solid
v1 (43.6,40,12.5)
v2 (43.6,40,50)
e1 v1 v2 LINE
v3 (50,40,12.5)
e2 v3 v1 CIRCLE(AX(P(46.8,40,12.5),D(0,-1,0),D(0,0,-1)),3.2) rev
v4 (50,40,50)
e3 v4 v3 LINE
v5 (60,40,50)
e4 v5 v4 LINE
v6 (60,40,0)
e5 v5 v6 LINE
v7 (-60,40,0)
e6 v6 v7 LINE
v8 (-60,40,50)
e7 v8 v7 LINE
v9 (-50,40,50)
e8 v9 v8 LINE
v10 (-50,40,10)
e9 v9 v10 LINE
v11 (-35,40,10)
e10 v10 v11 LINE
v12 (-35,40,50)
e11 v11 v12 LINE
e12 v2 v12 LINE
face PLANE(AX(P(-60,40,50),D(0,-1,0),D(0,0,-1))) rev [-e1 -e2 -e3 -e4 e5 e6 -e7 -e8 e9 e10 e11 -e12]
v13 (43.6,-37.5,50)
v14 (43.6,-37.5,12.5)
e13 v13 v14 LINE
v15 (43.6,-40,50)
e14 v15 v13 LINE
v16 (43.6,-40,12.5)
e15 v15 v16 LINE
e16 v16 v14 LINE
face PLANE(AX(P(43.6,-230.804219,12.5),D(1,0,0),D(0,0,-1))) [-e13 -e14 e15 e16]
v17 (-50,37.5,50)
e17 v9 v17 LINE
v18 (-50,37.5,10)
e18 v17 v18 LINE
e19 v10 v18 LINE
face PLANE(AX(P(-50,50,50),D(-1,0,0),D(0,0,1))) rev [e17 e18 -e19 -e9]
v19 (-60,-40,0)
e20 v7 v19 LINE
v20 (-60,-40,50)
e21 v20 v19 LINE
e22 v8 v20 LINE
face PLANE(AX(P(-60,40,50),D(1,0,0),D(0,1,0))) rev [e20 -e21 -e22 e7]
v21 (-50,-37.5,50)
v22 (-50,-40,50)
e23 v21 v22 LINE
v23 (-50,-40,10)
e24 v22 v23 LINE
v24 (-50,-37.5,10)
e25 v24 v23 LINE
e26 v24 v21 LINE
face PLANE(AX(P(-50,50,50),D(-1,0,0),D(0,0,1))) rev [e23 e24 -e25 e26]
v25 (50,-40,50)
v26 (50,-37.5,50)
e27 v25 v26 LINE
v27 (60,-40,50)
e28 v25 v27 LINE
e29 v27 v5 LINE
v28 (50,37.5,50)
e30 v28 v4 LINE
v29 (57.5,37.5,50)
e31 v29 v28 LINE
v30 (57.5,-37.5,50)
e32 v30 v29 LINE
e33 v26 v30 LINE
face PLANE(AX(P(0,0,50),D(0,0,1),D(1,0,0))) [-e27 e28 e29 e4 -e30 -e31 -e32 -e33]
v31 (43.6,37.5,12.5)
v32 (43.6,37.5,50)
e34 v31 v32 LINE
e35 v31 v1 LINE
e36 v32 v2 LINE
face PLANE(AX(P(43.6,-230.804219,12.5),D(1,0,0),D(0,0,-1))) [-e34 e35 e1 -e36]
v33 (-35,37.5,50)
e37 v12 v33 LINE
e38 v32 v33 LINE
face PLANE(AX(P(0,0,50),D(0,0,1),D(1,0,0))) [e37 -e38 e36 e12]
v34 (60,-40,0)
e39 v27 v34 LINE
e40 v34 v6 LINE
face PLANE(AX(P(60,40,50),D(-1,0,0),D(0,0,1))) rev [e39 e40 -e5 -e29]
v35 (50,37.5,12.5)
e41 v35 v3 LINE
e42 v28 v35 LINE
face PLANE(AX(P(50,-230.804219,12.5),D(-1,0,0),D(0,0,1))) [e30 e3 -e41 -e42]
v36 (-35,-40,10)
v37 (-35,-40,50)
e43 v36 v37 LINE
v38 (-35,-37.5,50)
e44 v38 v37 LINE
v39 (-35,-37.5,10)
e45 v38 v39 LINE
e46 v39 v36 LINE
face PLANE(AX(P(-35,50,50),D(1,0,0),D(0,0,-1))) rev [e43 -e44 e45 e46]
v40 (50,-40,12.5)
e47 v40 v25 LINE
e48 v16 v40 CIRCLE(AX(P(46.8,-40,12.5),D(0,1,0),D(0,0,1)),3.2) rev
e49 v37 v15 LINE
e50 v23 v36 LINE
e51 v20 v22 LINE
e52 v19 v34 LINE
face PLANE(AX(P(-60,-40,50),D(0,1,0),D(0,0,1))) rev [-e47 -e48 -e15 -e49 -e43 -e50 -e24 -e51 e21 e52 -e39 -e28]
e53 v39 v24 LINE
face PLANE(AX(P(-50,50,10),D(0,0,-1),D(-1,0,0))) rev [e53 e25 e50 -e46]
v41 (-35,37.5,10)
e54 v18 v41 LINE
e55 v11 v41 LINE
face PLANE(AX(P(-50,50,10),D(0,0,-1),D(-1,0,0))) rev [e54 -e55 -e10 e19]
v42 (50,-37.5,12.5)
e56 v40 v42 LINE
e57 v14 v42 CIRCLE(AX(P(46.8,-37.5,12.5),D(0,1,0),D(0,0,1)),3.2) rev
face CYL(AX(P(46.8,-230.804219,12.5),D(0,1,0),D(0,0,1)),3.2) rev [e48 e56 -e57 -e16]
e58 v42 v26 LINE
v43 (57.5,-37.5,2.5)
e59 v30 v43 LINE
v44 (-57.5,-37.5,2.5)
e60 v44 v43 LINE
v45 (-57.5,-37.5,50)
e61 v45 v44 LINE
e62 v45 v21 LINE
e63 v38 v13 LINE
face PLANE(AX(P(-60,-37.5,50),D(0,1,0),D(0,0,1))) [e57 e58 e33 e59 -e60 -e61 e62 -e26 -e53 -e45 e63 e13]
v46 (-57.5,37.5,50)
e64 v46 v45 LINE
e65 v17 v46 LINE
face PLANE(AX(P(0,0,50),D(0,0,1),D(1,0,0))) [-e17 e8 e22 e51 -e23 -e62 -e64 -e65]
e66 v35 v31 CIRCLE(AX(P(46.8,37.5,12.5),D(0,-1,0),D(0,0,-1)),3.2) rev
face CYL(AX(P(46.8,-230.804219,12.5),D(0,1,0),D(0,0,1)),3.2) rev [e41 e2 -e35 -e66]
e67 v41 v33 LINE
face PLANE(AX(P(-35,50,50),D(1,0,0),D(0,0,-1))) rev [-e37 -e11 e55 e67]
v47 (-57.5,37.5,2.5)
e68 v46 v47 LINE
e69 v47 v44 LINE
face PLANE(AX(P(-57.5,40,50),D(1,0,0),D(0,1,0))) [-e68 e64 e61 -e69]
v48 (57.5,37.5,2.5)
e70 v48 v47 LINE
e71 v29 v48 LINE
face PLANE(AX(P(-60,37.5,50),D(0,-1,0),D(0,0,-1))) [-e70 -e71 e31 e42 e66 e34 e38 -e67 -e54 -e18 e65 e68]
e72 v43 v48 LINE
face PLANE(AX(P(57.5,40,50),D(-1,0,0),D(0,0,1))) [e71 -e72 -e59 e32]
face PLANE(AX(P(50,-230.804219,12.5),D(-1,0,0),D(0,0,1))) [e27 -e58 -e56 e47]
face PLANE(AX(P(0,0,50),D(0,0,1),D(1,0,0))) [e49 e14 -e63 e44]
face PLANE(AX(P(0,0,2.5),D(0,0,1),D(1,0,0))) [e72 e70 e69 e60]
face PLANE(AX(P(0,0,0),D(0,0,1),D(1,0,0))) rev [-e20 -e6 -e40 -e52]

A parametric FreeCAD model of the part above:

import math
import FreeCAD as App
import Part
import Sketcher
from FreeCAD import Vector


def faces_at(feature, points):
    """Names of the faces that lie closest to the given points."""
    faces = feature.Shape.Faces
    near = lambda p: min(range(len(faces)), key=lambda i: faces[i].distToShape(Part.Vertex(*p))[0])
    return sorted({f"Face{near(p) + 1}" for p in points})


def add_polygon(sketch, points):
    """Adds a closed chain of lines whose ends are joined by coincident constraints."""
    first, n = sketch.GeometryCount, len(points)
    for a, b in zip(points, points[1:] + points[:1]):
        sketch.addGeometry(Part.LineSegment(App.Vector(*a, 0), App.Vector(*b, 0)), False)
    for i in range(n):
        sketch.addConstraint(Sketcher.Constraint("Coincident", first + i, 2, first + (i + 1) % n, 1))

doc = App.newDocument("Part")
body = doc.addObject("PartDesign::Body", "Body")

# Sketch on XY plane
sketch1 = doc.addObject("Sketcher::SketchObject", "Sketch")
body.addObject(sketch1)
sketch1.AttachmentSupport = (doc.XY_Plane, [""])
sketch1.MapMode = "FlatFace"
add_polygon(sketch1, [(-60, 40), (-60, -40), (60, -40), (60, 40)])  # lines 0-3
sketch1.addConstraint([
    Sketcher.Constraint("Vertical", 0),
    Sketcher.Constraint("Horizontal", 1),
    Sketcher.Constraint("Vertical", 2),
    Sketcher.Constraint("Horizontal", 3),
    Sketcher.Constraint("Symmetric", 0, 2, 2, 2, -1, 1),
    Sketcher.Constraint("DistanceX", 1, 1, 1, 2, 120.0),
    Sketcher.Constraint("DistanceY", 0, 2, 0, 1, 80.0),
])
pad1 = doc.addObject("PartDesign::Pad", "Pad")
body.addObject(pad1)
pad1.Profile = sketch1
pad1.Length = 50
doc.recompute()

thickness = doc.addObject("PartDesign::Thickness", "Thickness")
body.addObject(thickness)
thickness.Base = (pad1, faces_at(pad1, [(0, 0, 50)]))
thickness.Value = 2.5
thickness.Reversed = True
thickness.Join = "Intersection"

# Sketch on XZ plane
sketch2 = doc.addObject("Sketcher::SketchObject", "Sketch001")
body.addObject(sketch2)
sketch2.AttachmentSupport = (doc.XZ_Plane, [""])
sketch2.MapMode = "FlatFace"
sketch2.AttachmentOffset = App.Placement(Vector(0, 0, 40), App.Rotation())
add_polygon(sketch2, [(-50, 50), (-50, 10), (-35, 10), (-35, 50)])  # lines 0-3
sketch2.addConstraint([
    Sketcher.Constraint("Vertical", 0),
    Sketcher.Constraint("Horizontal", 1),
    Sketcher.Constraint("Vertical", 2),
    Sketcher.Constraint("Horizontal", 3),
    Sketcher.Constraint("DistanceX", 1, 1, 1, 2, 15.0),
    Sketcher.Constraint("DistanceY", 0, 2, 0, 1, 40.0),
    Sketcher.Constraint("DistanceX", 0, 2, -1, 1, 50.0),
    Sketcher.Constraint("DistanceY", -1, 1, 0, 2, 10.0),
])
pocket1 = doc.addObject("PartDesign::Pocket", "Pocket")
body.addObject(pocket1)
pocket1.Profile = sketch2
pocket1.Length = 90

# Sketch on XZ plane
sketch3 = doc.addObject("Sketcher::SketchObject", "Sketch002")
body.addObject(sketch3)
sketch3.AttachmentSupport = (doc.XZ_Plane, [""])
sketch3.MapMode = "FlatFace"
sketch3.AttachmentOffset = App.Placement(Vector(0, 0, 40), App.Rotation())
sketch3.addGeometry([
    Part.LineSegment(Vector(43.6, 50, 0), Vector(43.6, 12.5, 0)),
    Part.ArcOfCircle(Part.Circle(Vector(46.8, 12.5, 0), Vector(0, 0, 1), 3.2), math.radians(180), math.radians(360)),
    Part.LineSegment(Vector(50, 12.5, 0), Vector(50, 50, 0)),
    Part.LineSegment(Vector(50, 50, 0), Vector(43.6, 50, 0)),
], False)
sketch3.addConstraint([
    Sketcher.Constraint("Tangent", 0, 2, 1, 1),
    Sketcher.Constraint("Tangent", 1, 2, 2, 1),
    Sketcher.Constraint("Coincident", 2, 2, 3, 1),
    Sketcher.Constraint("Coincident", 3, 2, 0, 1),
    Sketcher.Constraint("Vertical", 0),
    Sketcher.Constraint("Vertical", 2),
    Sketcher.Constraint("Horizontal", 3),
    Sketcher.Constraint("Radius", 1, 3.2),
    Sketcher.Constraint("DistanceY", 0, 2, 0, 1, 37.5),
    Sketcher.Constraint("DistanceX", -1, 1, 1, 2, 50.0),
    Sketcher.Constraint("DistanceY", -1, 1, 2, 2, 50.0),
])
pocket2 = doc.addObject("PartDesign::Pocket", "Pocket001")
body.addObject(pocket2)
pocket2.Profile = sketch3
pocket2.Type = "ThroughAll"
pocket2.Midplane = True

doc.recompute()
